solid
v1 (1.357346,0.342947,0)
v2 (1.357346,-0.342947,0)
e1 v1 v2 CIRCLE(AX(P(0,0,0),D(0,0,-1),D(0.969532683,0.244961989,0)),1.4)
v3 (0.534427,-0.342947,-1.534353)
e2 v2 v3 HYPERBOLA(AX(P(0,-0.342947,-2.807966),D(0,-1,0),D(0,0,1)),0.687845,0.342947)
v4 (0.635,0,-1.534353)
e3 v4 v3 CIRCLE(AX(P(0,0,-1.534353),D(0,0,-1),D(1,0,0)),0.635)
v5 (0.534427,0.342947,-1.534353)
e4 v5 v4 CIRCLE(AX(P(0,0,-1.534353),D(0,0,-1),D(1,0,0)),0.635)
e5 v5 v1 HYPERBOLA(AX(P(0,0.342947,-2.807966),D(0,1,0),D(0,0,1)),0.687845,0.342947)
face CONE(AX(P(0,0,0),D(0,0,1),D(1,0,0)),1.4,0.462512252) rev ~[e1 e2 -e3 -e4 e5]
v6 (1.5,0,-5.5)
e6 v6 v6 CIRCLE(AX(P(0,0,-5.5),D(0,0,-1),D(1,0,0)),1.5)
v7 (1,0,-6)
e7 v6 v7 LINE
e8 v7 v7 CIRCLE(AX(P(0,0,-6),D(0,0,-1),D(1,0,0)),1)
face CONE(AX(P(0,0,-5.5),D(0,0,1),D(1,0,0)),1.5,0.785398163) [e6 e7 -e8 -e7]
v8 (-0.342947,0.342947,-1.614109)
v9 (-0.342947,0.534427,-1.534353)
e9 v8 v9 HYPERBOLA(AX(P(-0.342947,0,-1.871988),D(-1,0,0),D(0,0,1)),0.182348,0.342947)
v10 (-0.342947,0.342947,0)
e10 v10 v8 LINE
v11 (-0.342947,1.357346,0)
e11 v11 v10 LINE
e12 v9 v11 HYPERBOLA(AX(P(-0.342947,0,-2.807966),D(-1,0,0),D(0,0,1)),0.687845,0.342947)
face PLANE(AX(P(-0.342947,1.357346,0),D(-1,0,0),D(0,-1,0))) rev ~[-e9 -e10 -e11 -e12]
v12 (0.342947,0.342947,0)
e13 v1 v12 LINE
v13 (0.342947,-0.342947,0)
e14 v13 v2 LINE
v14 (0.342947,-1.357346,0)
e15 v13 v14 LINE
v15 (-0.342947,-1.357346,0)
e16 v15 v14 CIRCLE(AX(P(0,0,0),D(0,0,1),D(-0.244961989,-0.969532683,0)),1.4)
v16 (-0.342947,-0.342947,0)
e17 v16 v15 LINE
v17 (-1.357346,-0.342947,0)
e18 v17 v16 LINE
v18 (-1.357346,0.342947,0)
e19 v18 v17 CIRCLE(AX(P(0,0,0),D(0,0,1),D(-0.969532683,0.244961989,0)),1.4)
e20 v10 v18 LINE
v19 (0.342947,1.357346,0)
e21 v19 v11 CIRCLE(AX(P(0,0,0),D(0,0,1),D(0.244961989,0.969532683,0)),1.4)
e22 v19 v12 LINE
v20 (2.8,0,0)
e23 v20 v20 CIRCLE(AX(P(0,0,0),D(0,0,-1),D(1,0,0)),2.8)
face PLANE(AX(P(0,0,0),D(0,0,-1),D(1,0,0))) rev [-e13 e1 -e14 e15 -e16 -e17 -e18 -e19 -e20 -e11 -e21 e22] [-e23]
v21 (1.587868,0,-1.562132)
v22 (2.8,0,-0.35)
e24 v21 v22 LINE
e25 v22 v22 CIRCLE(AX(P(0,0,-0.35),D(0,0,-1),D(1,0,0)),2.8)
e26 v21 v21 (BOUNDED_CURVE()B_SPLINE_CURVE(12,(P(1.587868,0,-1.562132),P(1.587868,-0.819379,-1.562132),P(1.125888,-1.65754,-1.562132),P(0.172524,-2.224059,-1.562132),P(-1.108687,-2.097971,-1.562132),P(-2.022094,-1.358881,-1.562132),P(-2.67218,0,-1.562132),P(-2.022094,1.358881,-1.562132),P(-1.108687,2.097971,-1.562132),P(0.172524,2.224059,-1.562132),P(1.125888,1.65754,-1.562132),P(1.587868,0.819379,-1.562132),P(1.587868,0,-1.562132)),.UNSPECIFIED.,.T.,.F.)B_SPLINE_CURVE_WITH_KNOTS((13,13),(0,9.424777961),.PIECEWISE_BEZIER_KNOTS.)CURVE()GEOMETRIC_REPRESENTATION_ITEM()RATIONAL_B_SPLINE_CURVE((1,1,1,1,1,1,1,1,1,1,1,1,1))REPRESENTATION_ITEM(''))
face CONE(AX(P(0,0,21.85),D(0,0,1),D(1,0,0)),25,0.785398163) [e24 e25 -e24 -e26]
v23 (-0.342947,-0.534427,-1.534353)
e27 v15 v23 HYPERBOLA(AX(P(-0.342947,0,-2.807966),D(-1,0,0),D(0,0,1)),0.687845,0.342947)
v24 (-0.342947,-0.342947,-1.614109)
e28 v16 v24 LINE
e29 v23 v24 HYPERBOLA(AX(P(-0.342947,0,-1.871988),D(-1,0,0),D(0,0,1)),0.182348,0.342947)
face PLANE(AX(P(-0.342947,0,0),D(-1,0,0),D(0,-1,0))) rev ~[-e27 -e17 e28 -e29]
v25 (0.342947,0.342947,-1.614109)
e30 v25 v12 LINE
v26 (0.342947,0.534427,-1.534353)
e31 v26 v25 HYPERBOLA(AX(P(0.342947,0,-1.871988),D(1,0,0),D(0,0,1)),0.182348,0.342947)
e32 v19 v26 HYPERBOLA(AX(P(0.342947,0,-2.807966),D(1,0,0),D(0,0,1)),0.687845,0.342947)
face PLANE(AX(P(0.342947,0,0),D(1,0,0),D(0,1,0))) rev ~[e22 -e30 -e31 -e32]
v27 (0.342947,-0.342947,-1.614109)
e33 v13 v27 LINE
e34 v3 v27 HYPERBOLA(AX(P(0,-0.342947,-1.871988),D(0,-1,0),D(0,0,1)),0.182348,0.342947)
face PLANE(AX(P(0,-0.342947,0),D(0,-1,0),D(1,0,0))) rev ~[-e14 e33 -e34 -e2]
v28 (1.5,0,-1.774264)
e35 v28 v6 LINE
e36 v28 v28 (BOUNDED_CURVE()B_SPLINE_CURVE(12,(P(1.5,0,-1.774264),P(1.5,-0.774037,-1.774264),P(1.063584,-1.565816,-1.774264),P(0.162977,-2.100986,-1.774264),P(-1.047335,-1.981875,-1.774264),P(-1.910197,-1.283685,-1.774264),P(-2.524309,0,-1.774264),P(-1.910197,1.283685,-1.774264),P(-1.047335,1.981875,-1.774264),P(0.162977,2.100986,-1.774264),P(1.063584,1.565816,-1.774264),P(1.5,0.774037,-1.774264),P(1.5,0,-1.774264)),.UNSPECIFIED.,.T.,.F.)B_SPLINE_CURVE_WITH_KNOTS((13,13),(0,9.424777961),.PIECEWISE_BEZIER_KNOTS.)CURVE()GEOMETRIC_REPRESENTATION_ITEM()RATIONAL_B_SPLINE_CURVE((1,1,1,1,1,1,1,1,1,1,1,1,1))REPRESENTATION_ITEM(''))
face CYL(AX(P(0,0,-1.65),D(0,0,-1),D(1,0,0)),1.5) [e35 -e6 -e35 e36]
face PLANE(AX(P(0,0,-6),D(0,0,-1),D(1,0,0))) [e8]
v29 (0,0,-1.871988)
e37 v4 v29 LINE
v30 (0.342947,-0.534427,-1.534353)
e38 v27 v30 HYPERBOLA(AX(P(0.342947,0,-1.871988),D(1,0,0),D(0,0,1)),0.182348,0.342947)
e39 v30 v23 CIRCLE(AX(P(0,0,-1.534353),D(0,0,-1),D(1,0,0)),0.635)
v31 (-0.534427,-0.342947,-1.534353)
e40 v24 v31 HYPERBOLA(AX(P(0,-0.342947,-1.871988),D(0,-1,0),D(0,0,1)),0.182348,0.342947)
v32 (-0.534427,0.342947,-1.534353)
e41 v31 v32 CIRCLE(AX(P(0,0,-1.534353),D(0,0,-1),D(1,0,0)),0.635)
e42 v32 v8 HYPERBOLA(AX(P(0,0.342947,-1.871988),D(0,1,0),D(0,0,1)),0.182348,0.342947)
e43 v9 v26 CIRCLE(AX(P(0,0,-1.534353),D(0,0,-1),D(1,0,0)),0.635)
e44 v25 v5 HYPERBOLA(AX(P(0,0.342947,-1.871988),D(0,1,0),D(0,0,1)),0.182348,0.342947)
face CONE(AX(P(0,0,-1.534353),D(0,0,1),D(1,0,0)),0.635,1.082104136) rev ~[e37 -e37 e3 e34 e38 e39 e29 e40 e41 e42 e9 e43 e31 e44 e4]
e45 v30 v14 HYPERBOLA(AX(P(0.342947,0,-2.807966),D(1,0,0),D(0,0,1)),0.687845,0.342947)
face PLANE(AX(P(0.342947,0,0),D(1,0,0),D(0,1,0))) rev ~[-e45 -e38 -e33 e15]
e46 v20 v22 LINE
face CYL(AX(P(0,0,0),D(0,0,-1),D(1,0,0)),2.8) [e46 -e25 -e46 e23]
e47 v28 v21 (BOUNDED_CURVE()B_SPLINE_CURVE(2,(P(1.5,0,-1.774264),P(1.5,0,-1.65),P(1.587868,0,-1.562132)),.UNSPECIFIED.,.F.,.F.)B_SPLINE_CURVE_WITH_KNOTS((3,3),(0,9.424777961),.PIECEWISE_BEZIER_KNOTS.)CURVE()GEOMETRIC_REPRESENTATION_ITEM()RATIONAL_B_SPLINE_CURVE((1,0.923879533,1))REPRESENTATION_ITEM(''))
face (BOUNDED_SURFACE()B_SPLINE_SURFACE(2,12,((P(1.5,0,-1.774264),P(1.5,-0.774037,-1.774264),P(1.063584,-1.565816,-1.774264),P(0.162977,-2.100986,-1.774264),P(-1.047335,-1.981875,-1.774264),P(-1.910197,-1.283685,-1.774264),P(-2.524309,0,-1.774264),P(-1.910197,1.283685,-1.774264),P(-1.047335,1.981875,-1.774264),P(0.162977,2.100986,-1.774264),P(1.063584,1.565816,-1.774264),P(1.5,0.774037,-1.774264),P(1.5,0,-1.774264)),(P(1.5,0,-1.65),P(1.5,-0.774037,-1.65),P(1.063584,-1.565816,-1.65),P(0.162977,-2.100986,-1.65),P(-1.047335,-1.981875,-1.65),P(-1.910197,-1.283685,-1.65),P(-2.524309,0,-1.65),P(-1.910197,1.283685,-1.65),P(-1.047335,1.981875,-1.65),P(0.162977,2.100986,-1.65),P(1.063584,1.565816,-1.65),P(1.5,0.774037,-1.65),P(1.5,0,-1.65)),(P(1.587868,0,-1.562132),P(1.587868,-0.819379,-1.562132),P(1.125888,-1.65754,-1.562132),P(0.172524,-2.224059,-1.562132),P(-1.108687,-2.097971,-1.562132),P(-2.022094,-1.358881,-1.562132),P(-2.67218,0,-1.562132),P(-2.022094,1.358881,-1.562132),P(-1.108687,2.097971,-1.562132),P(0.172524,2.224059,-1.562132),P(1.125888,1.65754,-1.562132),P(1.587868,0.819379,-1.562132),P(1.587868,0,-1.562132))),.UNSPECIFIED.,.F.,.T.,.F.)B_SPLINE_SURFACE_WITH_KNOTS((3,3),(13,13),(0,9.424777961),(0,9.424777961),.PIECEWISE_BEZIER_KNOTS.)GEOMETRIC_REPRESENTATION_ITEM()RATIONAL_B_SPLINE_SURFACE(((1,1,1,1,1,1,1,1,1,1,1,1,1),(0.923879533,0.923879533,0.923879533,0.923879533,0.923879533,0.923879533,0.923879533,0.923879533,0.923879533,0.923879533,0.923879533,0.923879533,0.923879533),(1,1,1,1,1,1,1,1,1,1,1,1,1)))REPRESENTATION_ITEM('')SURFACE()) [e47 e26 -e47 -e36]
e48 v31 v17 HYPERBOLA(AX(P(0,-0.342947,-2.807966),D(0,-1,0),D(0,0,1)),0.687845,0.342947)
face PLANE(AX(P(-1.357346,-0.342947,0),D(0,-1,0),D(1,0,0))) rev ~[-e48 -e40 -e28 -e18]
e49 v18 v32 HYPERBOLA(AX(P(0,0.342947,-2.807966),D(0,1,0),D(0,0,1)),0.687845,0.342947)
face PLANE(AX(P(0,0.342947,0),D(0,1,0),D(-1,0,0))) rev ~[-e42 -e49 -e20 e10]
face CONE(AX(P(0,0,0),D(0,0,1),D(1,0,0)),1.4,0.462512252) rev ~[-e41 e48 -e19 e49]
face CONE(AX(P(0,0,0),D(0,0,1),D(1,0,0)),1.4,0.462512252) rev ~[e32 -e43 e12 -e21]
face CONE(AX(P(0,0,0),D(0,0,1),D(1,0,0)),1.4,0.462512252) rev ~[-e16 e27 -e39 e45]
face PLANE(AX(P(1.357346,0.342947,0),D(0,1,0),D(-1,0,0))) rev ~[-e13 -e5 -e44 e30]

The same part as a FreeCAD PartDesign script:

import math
import FreeCAD as App
import Part
import Sketcher
from FreeCAD import Vector
Q = App.Units.Quantity


def edges_at(feature, points):
    """Names of the edges that pass closest to the given points."""
    edges = feature.Shape.Edges
    near = lambda p: min(range(len(edges)), key=lambda i: edges[i].distToShape(Part.Vertex(*p))[0])
    return sorted({f"Edge{near(p) + 1}" for p in points})

doc = App.newDocument("Part")
body = doc.addObject("PartDesign::Body", "Body")

sketch1 = body.newObject("Sketcher::SketchObject", "Sketch")
sketch1.AttachmentSupport = (doc.getObject("YZ_Plane"), [""])
sketch1.MapMode = "FlatFace"
sketch1.addGeometry(Part.LineSegment(Vector(2.8, 0, 0), Vector(0, 0, 0)), False)
sketch1.addGeometry(Part.LineSegment(Vector(0, 0, 0), Vector(0, -6, 0)), False)
sketch1.addGeometry(Part.LineSegment(Vector(0, -6, 0), Vector(1.5, -6, 0)), False)
sketch1.addGeometry(Part.LineSegment(Vector(1.5, -6, 0), Vector(1.5, -1.65, 0)), False)
sketch1.addGeometry(Part.LineSegment(Vector(1.5, -1.65, 0), Vector(2.8, -0.35, 0)), False)
sketch1.addGeometry(Part.LineSegment(Vector(2.8, -0.35, 0), Vector(2.8, 0, 0)), False)
sketch1.addConstraint(Sketcher.Constraint("Coincident", 0, 2, 1, 1))
sketch1.addConstraint(Sketcher.Constraint("Coincident", 1, 2, 2, 1))
sketch1.addConstraint(Sketcher.Constraint("Coincident", 2, 2, 3, 1))
sketch1.addConstraint(Sketcher.Constraint("Coincident", 3, 2, 4, 1))
sketch1.addConstraint(Sketcher.Constraint("Coincident", 4, 2, 5, 1))
sketch1.addConstraint(Sketcher.Constraint("Coincident", 5, 2, 0, 1))
sketch1.addConstraint(Sketcher.Constraint("Horizontal", 0))
sketch1.addConstraint(Sketcher.Constraint("Vertical", 1))
sketch1.addConstraint(Sketcher.Constraint("Horizontal", 2))
sketch1.addConstraint(Sketcher.Constraint("Vertical", 3))
sketch1.addConstraint(Sketcher.Constraint("Vertical", 5))
sketch1.addConstraint(Sketcher.Constraint("Coincident", 0, 2, -1, 1))
sketch1.addConstraint(Sketcher.Constraint("DistanceY", 1, 2, 1, 1, Q("6 mm")))
sketch1.addConstraint(Sketcher.Constraint("Angle", 4, Q("45 deg")))
sketch1.addConstraint(Sketcher.Constraint("DistanceX", 0, 2, 0, 1, Q("2.8 mm")))
sketch1.addConstraint(Sketcher.Constraint("DistanceX", 2, 1, 2, 2, Q("1.5 mm")))
sketch1.addConstraint(Sketcher.Constraint("DistanceY", 3, 1, 3, 2, Q("4.35 mm")))
revolution = body.newObject("PartDesign::Revolution", "Revolution")
revolution.Profile = sketch1
revolution.ReferenceAxis = (sketch1, ["V_Axis"])
revolution.Angle = 360
doc.recompute()

chamfer = body.newObject("PartDesign::Chamfer", "Chamfer")
chamfer.Base = (revolution, edges_at(revolution, [(-1.5, 0, -6)]))
chamfer.Size = 0.5

sketch2 = body.newObject("Sketcher::SketchObject", "Sketch001")
sketch2.AttachmentSupport = (doc.getObject("XY_Plane"), [""])
sketch2.MapMode = "FlatFace"
sketch2.addGeometry(Part.LineSegment(Vector(-0.3, 0, 0), Vector(0.3, 0, 0)), False)
sketch2.addGeometry(Part.LineSegment(Vector(0.3, 0, 0), Vector(0.3, 1.4, 0)), False)
sketch2.addGeometry(Part.ArcOfCircle(Part.Circle(Vector(0, 0, 0), Vector(0, 0, 1), 1.4), math.radians(76), math.radians(104)), False)
sketch2.addGeometry(Part.LineSegment(Vector(-0.3, 1.4, 0), Vector(-0.3, 0, 0)), False)
sketch2.addConstraint(Sketcher.Constraint("Coincident", 0, 2, 1, 1))
sketch2.addConstraint(Sketcher.Constraint("Coincident", 1, 2, 2, 1))
sketch2.addConstraint(Sketcher.Constraint("Coincident", 2, 2, 3, 1))
sketch2.addConstraint(Sketcher.Constraint("Coincident", 3, 2, 0, 1))
sketch2.addConstraint(Sketcher.Constraint("Horizontal", 0))
sketch2.addConstraint(Sketcher.Constraint("Vertical", 1))
sketch2.addConstraint(Sketcher.Constraint("Vertical", 3))
sketch2.addConstraint(Sketcher.Constraint("Coincident", 2, 3, -1, 1))
sketch2.addConstraint(Sketcher.Constraint("Symmetric", 0, 2, 3, 2, -1, 1))
sketch2.addConstraint(Sketcher.Constraint("Radius", 2, Q("1.4 mm")))
sketch2.addConstraint(Sketcher.Constraint("DistanceX", 0, 1, 0, 2, Q("0.685894 mm")))
pocket1 = body.newObject("PartDesign::Pocket", "Pocket")
pocket1.Profile = sketch2
pocket1.Length = 2.8
doc.recompute()

polarpattern = body.newObject("PartDesign::PolarPattern", "PolarPattern")
polarpattern.Originals = [pocket1]
polarpattern.Axis = (doc.getObject("Z_Axis"), [""])
polarpattern.Angle = 360
polarpattern.Occurrences = 4
body.Tip = polarpattern

sketch3 = body.newObject("Sketcher::SketchObject", "Sketch002")
sketch3.AttachmentSupport = (doc.getObject("YZ_Plane"), [""])
sketch3.MapMode = "FlatFace"
sketch3.addGeometry(Part.LineSegment(Vector(0, -2.8, 0), Vector(1.9, -2.8, 0)), False)
sketch3.addGeometry(Part.LineSegment(Vector(1.9, -2.8, 0), Vector(1.9, 0, 0)), False)
sketch3.addGeometry(Part.LineSegment(Vector(1.9, 0, 0), Vector(1.4, 0, 0)), False)
sketch3.addGeometry(Part.LineSegment(Vector(1.4, 0, 0), Vector(0.6, -1.5, 0)), False)
sketch3.addGeometry(Part.LineSegment(Vector(0.6, -1.5, 0), Vector(0, -1.9, 0)), False)
sketch3.addGeometry(Part.LineSegment(Vector(0, -1.9, 0), Vector(0, -2.8, 0)), False)
sketch3.addConstraint(Sketcher.Constraint("Coincident", 0, 2, 1, 1))
sketch3.addConstraint(Sketcher.Constraint("Coincident", 1, 2, 2, 1))
sketch3.addConstraint(Sketcher.Constraint("Coincident", 2, 2, 3, 1))
sketch3.addConstraint(Sketcher.Constraint("Coincident", 3, 2, 4, 1))
sketch3.addConstraint(Sketcher.Constraint("Coincident", 4, 2, 5, 1))
sketch3.addConstraint(Sketcher.Constraint("Coincident", 5, 2, 0, 1))
sketch3.addConstraint(Sketcher.Constraint("Horizontal", 0))
sketch3.addConstraint(Sketcher.Constraint("Vertical", 1))
sketch3.addConstraint(Sketcher.Constraint("Horizontal", 2))
sketch3.addConstraint(Sketcher.Constraint("Vertical", 5))
sketch3.addConstraint(Sketcher.Constraint("PointOnObject", 1, 2, -1))
sketch3.addConstraint(Sketcher.Constraint("PointOnObject", 4, 2, -2))
sketch3.addConstraint(Sketcher.Constraint("Angle", 4, Q("-152 deg")))
sketch3.addConstraint(Sketcher.Constraint("DistanceX", 0, 1, 0, 2, Q("1.9 mm")))
sketch3.addConstraint(Sketcher.Constraint("DistanceX", 2, 2, 2, 1, Q("0.5 mm")))
sketch3.addConstraint(Sketcher.Constraint("DistanceY", 1, 1, 1, 2, Q("2.8 mm")))
sketch3.addConstraint(Sketcher.Constraint("Angle", 3, Q("-116.5 deg")))
sketch3.addConstraint(Sketcher.Constraint("DistanceX", -1, 1, 3, 2, Q("0.635 mm")))
revolution2 = body.newObject("PartDesign::Revolution", "Revolution001")
revolution2.Profile = sketch3
revolution2.ReferenceAxis = (sketch3, ["V_Axis"])
revolution2.Angle = 360

sketch4 = body.newObject("Sketcher::SketchObject", "Sketch003")
sketch4.AttachmentSupport = (doc.getObject("YZ_Plane"), [""])
sketch4.MapMode = "FlatFace"
sketch4.addGeometry(Part.LineSegment(Vector(25, 21.9, 0), Vector(1.5, -1.6, 0)), False)
sketch4.addGeometry(Part.LineSegment(Vector(1.5, -1.6, 0), Vector(1.5, -2.8, 0)), False)
sketch4.addGeometry(Part.LineSegment(Vector(1.5, -2.8, 0), Vector(25, -2.8, 0)), False)
sketch4.addGeometry(Part.LineSegment(Vector(25, -2.8, 0), Vector(25, 21.9, 0)), False)
sketch4.addConstraint(Sketcher.Constraint("Coincident", 0, 2, 1, 1))
sketch4.addConstraint(Sketcher.Constraint("Coincident", 1, 2, 2, 1))
sketch4.addConstraint(Sketcher.Constraint("Coincident", 2, 2, 3, 1))
sketch4.addConstraint(Sketcher.Constraint("Coincident", 3, 2, 0, 1))
sketch4.addConstraint(Sketcher.Constraint("Vertical", 1))
sketch4.addConstraint(Sketcher.Constraint("Horizontal", 2))
sketch4.addConstraint(Sketcher.Constraint("Vertical", 3))
sketch4.addConstraint(Sketcher.Constraint("Angle", 0, Q("-135 deg")))
sketch4.addConstraint(Sketcher.Constraint("DistanceX", 2, 1, 2, 2, Q("23.5 mm")))
sketch4.addConstraint(Sketcher.Constraint("DistanceX", -1, 1, 2, 2, Q("25 mm")))
sketch4.addConstraint(Sketcher.Constraint("DistanceY", 1, 2, 1, 1, Q("1.15 mm")))
sketch4.addConstraint(Sketcher.Constraint("DistanceY", 1, 2, -1, 1, Q("2.8 mm")))
groove = body.newObject("PartDesign::Groove", "Groove")
groove.Profile = sketch4
groove.ReferenceAxis = (sketch4, ["V_Axis"])
groove.Angle = 360
doc.recompute()

fillet = body.newObject("PartDesign::Fillet", "Fillet")
fillet.Base = (groove, edges_at(groove, [(-1.5, 0, -1.65)]))
fillet.Radius = 0.3

doc.recompute()
